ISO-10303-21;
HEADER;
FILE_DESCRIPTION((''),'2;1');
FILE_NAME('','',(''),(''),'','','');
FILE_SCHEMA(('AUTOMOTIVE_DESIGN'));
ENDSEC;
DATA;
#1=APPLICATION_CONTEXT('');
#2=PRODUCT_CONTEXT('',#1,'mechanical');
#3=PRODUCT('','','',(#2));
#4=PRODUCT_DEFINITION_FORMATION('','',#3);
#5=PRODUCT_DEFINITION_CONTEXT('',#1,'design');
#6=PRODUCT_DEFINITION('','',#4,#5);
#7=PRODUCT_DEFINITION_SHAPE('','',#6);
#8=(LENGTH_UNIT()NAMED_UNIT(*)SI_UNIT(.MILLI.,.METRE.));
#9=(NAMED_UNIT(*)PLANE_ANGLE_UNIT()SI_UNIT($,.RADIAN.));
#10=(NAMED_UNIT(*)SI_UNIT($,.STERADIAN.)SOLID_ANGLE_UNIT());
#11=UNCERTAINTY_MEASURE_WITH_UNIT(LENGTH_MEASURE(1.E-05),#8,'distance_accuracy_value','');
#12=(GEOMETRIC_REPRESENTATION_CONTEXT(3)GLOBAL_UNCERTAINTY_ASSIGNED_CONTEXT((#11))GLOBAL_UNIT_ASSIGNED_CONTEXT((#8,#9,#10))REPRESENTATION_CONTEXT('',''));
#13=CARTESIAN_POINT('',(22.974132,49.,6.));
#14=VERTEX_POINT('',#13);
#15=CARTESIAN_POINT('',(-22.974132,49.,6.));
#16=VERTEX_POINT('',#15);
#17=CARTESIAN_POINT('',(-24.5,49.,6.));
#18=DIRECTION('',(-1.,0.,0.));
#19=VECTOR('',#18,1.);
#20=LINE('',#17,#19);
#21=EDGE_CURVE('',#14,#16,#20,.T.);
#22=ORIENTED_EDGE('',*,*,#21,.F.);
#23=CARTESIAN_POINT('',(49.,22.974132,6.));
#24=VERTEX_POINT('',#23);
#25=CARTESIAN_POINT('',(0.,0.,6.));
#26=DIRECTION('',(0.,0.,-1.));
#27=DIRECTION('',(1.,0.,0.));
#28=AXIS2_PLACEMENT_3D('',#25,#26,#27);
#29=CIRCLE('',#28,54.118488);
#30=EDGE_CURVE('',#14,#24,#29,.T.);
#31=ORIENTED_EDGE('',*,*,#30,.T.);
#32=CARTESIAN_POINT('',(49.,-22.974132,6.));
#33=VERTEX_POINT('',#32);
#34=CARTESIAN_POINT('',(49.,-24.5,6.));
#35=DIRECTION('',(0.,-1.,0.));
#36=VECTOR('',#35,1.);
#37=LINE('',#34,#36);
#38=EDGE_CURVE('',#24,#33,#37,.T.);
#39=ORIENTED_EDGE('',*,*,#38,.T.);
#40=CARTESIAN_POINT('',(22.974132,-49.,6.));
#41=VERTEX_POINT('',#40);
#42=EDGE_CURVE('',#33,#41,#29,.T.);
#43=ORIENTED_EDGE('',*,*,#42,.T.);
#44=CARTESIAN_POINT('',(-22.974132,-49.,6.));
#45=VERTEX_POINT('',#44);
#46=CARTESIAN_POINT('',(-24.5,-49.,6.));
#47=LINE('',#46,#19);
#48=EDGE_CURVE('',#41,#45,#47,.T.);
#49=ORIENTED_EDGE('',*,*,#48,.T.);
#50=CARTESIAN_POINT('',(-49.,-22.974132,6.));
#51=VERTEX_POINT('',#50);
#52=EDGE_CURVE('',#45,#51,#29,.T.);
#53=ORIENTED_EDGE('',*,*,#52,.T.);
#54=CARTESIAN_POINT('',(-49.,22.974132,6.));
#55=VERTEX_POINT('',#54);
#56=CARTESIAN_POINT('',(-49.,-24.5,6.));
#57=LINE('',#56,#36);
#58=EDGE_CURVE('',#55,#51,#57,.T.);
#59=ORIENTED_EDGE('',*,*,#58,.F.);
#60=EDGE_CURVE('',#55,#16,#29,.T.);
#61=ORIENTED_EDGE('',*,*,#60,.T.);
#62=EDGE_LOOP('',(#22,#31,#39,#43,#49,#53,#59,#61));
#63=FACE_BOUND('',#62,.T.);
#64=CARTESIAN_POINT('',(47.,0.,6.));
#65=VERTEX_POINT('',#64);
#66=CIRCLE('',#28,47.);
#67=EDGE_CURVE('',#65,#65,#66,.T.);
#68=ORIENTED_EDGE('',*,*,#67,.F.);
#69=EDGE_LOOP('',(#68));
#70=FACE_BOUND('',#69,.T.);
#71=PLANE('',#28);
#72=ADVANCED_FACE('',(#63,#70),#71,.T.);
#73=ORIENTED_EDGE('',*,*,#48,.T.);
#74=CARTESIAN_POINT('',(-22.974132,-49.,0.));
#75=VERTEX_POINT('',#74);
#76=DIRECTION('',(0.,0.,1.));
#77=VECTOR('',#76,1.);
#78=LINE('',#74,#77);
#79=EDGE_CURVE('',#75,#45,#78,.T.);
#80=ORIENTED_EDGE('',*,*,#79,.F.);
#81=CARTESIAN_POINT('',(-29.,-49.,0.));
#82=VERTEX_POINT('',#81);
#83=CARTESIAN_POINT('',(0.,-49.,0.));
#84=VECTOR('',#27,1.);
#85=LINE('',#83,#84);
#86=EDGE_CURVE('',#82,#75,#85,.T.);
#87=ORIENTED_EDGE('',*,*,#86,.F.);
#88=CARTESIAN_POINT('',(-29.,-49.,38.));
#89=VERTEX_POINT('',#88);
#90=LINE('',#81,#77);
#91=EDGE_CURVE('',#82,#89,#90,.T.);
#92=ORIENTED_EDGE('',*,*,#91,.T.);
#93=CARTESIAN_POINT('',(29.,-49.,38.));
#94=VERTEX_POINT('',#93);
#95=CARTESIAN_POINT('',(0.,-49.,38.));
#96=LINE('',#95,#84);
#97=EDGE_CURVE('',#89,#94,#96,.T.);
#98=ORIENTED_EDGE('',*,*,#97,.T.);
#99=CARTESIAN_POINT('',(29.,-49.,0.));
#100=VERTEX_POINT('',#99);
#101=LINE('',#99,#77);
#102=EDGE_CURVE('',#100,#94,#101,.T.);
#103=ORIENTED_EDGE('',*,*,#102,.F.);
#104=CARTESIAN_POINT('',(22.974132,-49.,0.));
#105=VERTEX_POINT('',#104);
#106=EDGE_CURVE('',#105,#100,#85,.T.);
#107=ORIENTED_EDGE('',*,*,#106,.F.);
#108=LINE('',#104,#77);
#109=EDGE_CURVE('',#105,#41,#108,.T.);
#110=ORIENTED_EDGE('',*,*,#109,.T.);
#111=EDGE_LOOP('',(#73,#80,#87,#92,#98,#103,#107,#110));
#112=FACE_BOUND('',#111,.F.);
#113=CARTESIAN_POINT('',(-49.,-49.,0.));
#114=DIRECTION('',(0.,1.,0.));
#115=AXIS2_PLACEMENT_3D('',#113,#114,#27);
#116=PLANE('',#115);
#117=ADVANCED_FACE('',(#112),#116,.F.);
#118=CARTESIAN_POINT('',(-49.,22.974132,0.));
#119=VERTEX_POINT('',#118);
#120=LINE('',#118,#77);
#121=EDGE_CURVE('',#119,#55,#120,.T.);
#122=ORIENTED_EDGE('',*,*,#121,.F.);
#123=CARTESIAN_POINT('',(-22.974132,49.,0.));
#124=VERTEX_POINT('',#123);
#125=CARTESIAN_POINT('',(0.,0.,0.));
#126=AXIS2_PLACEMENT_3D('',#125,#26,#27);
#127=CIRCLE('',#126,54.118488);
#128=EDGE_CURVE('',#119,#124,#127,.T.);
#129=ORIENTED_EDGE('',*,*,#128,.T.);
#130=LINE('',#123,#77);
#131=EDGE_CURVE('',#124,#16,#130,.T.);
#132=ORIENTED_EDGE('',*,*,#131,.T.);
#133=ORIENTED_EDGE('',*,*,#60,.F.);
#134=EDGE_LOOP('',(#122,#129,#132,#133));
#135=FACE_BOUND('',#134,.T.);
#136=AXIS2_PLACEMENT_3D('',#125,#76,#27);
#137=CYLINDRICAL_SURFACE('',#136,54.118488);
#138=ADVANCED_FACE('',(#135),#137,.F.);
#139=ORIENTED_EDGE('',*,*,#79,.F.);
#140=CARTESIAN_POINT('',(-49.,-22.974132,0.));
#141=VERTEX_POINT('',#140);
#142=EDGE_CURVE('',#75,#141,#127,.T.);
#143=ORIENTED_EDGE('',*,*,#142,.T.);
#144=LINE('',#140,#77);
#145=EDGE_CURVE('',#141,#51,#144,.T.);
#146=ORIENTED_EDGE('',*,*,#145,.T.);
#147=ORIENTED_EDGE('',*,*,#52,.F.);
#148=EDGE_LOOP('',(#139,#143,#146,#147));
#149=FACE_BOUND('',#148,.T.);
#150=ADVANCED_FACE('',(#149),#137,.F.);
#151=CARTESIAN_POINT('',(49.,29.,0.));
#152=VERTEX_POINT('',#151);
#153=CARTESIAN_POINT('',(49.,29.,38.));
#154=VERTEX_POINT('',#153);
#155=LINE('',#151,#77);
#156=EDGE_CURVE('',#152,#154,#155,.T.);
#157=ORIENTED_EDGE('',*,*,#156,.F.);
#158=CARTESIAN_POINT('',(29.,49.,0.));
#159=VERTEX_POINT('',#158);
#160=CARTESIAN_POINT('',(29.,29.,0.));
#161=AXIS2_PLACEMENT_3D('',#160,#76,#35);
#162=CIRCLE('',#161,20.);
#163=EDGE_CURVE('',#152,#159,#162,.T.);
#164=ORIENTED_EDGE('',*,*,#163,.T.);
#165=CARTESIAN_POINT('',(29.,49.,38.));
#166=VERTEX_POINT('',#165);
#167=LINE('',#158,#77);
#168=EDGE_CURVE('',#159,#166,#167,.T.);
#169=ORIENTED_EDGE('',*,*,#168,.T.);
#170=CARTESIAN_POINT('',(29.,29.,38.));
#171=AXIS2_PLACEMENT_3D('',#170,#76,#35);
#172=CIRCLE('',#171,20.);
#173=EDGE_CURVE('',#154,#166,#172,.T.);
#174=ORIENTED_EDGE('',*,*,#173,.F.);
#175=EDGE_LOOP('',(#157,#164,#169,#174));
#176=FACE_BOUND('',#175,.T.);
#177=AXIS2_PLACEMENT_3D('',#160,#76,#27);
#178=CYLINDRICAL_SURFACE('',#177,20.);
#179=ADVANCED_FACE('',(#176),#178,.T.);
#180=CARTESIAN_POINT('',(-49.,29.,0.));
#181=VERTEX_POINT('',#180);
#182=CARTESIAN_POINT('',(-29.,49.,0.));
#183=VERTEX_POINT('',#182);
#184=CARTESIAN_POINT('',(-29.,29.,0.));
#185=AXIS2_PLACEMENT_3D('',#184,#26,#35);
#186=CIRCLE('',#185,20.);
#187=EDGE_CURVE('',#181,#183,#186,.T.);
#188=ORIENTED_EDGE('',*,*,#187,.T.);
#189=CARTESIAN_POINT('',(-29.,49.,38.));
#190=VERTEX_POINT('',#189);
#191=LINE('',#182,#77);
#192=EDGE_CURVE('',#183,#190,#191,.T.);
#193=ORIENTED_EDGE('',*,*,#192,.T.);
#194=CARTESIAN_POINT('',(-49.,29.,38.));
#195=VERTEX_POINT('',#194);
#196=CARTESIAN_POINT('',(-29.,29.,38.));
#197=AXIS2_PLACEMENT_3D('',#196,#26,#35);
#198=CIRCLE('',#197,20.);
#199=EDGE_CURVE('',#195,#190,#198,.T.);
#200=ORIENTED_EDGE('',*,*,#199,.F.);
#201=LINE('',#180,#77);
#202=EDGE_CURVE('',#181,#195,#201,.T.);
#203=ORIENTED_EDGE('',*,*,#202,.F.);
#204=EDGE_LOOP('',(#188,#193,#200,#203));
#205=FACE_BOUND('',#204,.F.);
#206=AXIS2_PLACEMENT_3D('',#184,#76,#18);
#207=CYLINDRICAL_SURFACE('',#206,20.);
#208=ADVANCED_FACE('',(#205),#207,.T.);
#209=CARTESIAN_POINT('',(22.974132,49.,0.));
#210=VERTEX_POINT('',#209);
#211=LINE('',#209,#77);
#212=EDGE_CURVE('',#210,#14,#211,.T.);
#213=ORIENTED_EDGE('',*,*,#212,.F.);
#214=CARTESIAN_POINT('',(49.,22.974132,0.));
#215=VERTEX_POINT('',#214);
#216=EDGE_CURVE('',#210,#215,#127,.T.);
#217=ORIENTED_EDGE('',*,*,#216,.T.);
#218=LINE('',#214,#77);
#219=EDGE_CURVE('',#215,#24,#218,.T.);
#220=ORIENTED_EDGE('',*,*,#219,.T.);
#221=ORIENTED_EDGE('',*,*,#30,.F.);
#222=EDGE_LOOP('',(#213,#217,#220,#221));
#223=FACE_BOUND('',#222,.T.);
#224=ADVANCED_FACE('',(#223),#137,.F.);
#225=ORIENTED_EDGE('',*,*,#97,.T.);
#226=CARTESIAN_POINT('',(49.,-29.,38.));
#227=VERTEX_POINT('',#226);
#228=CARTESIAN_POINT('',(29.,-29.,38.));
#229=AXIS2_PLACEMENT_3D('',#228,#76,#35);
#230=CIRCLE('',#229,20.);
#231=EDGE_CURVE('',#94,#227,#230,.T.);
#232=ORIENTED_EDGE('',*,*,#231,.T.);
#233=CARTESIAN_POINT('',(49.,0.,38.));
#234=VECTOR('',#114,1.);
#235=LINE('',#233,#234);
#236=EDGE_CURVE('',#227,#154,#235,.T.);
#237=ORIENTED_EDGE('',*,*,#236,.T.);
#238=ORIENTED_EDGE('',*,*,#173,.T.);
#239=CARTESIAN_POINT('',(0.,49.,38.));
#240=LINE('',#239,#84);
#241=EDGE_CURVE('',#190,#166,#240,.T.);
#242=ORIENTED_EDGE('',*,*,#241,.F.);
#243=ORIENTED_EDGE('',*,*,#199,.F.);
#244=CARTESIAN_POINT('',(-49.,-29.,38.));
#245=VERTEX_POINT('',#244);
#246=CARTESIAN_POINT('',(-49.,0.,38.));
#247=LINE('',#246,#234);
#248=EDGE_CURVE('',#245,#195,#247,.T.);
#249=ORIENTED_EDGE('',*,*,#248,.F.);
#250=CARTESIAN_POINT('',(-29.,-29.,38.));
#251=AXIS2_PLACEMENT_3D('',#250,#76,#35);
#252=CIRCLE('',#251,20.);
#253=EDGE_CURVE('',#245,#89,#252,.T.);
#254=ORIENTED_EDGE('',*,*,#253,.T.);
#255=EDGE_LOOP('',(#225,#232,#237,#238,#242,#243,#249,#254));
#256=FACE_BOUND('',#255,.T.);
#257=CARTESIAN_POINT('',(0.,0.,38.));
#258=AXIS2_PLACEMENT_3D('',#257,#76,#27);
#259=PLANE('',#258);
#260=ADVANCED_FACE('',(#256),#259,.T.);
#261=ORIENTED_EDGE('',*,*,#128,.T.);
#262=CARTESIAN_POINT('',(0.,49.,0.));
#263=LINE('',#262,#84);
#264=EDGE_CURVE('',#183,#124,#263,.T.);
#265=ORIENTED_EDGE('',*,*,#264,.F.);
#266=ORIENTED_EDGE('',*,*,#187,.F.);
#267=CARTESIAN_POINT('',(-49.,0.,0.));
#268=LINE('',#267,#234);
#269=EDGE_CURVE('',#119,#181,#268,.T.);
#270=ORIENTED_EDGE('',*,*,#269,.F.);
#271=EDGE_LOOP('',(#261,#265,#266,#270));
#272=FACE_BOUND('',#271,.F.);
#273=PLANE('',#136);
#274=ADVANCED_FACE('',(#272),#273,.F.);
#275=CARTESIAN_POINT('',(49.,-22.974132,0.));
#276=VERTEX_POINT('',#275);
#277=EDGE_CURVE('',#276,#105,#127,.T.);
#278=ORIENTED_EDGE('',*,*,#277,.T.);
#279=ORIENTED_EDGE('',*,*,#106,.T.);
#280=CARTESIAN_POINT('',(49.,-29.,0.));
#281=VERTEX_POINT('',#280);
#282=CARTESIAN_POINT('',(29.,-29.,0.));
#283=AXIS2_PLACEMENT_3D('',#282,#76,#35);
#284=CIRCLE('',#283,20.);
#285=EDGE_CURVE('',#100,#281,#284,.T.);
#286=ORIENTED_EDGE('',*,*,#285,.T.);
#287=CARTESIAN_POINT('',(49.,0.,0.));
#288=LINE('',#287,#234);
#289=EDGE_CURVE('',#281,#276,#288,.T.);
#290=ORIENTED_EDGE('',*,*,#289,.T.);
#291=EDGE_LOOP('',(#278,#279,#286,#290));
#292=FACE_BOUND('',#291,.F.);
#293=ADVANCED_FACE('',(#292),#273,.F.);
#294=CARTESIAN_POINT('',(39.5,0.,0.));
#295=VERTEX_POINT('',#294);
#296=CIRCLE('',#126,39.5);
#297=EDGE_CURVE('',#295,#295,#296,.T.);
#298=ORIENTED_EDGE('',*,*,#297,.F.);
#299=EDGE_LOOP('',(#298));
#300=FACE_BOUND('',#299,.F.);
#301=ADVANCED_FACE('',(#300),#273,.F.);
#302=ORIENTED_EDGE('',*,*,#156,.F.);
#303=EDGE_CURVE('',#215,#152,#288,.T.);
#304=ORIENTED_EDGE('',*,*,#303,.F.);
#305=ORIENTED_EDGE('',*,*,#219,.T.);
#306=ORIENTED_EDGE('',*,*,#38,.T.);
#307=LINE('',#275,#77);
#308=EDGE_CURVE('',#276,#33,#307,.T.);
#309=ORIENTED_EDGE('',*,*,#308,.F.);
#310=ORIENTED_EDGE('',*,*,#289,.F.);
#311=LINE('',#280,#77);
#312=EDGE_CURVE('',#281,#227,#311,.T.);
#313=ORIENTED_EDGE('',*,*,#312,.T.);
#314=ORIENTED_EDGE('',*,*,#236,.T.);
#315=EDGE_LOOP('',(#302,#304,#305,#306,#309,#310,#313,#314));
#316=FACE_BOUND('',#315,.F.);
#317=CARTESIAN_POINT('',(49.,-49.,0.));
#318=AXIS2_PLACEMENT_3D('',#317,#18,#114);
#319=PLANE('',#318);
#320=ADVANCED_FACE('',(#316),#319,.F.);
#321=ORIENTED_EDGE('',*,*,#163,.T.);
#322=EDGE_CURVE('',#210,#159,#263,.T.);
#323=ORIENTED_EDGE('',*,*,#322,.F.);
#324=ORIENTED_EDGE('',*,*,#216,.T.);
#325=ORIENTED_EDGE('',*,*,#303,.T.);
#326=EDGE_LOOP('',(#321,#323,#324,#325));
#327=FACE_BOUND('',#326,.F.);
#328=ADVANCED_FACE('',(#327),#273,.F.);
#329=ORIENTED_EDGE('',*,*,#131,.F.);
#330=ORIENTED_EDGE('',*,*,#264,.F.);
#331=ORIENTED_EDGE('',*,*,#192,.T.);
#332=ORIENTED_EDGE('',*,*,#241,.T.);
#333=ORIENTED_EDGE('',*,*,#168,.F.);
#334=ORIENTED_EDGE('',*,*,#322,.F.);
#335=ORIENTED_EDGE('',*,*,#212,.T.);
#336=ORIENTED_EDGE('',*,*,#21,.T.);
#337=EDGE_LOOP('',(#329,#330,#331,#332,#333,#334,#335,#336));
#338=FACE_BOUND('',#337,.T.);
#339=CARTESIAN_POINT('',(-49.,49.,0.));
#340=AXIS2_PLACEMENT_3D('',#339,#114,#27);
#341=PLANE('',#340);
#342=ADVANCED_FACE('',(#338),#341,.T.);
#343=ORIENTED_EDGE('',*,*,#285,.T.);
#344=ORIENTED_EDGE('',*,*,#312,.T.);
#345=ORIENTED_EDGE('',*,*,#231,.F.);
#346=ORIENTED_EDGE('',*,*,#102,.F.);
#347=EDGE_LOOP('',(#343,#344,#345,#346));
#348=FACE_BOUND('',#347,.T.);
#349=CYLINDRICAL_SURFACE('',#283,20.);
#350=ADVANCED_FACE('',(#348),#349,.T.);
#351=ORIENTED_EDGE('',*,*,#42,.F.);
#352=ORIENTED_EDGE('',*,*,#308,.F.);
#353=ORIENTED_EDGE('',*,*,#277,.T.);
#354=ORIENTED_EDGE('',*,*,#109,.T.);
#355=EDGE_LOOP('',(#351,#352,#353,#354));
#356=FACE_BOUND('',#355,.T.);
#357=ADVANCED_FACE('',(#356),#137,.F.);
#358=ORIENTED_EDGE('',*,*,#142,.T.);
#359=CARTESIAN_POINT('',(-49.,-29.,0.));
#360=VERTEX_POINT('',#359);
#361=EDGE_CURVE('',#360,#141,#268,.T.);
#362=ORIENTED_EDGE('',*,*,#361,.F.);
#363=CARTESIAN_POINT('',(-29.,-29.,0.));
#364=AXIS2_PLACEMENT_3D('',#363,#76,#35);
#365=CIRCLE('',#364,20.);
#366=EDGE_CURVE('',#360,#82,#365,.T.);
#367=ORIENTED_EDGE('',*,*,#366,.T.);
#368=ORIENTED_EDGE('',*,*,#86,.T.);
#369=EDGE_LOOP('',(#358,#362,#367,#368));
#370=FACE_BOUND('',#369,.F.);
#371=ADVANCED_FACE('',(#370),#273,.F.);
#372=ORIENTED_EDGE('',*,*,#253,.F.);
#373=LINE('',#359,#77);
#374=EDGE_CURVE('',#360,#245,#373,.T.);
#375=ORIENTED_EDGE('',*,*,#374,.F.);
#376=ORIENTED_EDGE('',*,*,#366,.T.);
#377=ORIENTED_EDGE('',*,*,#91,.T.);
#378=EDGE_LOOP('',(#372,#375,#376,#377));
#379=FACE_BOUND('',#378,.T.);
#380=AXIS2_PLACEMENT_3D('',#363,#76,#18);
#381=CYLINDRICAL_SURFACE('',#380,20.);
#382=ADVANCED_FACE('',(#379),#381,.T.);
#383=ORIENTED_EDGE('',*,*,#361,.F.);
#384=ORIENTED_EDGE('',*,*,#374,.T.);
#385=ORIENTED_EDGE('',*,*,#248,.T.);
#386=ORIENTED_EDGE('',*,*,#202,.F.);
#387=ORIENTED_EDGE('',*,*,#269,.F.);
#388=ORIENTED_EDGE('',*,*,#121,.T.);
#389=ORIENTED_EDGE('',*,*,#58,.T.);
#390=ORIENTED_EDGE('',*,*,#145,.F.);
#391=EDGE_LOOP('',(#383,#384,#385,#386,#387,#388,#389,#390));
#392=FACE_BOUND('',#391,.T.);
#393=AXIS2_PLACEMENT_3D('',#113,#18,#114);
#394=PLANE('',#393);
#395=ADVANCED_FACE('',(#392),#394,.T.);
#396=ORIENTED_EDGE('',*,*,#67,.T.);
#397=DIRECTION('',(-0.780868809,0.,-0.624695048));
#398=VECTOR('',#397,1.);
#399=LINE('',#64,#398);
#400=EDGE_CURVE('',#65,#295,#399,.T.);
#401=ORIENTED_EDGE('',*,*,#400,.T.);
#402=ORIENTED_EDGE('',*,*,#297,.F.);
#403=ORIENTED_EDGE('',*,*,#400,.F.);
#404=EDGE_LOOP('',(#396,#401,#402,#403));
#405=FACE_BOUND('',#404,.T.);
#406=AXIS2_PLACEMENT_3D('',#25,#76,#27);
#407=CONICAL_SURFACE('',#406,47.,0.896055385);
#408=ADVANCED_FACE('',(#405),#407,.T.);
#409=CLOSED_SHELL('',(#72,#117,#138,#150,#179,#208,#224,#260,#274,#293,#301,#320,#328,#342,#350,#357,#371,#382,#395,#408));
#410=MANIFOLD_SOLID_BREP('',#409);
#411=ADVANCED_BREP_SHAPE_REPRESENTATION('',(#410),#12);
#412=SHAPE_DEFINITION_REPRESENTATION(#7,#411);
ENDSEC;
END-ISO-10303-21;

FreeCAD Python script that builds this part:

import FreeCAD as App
import Part
import Sketcher
from FreeCAD import Vector
Q = App.Units.Quantity


def edges_at(feature, points):
    """Names of the edges that pass closest to the given points."""
    edges = feature.Shape.Edges
    near = lambda p: min(range(len(edges)), key=lambda i: edges[i].distToShape(Part.Vertex(*p))[0])
    return sorted({f"Edge{near(p) + 1}" for p in points})


def add_polygon(sketch, points):
    """Adds a closed chain of lines whose ends are joined by coincident constraints."""
    first, n = sketch.GeometryCount, len(points)
    for a, b in zip(points, points[1:] + points[:1]):
        sketch.addGeometry(Part.LineSegment(App.Vector(*a, 0), App.Vector(*b, 0)), False)
    for i in range(n):
        sketch.addConstraint(Sketcher.Constraint("Coincident", first + i, 2, first + (i + 1) % n, 1))

doc = App.newDocument("Part")
params = doc.addObject("Spreadsheet::Sheet", "Params")
for row, (alias, value) in enumerate([
    ("sketch1_width", "98 mm"),
    ("pad1_length", "38 mm"),
    ("fillet_radius", "20 mm"),
    ("sketch2_height", "6 mm"),
    ("groove_angle", "360 deg"),
], start=1):
    params.set(f"A{row}", alias)
    params.set(f"B{row}", "=" + value)
    params.setAlias(f"B{row}", alias)

body = doc.addObject("PartDesign::Body", "Body")

# Sketch on XY plane
sketch1 = body.newObject("Sketcher::SketchObject", "Sketch")
sketch1.AttachmentSupport = (doc.getObject("XY_Plane"), [""])
sketch1.MapMode = "FlatFace"
add_polygon(sketch1, [(-49, 49), (-49, -49), (49, -49), (49, 49)])  # lines 0-3
sketch1.addConstraint([
    Sketcher.Constraint("Vertical", 0),
    Sketcher.Constraint("Horizontal", 1),
    Sketcher.Constraint("Vertical", 2),
    Sketcher.Constraint("Horizontal", 3),
    Sketcher.Constraint("Symmetric", 0, 2, 2, 2, -1, 1),
    Sketcher.Constraint("Equal", 3, 0),
    Sketcher.Constraint("DistanceX", 1, 1, 1, 2, Q("98 mm")),
])
sketch1.setExpression("Constraints[10]", "Params.sketch1_width")
pad1 = body.newObject("PartDesign::Pad", "Pad")
pad1.Profile = sketch1
pad1.setExpression("Length", "Params.pad1_length")
doc.recompute()

fillet = body.newObject("PartDesign::Fillet", "Fillet")
fillet.Base = (pad1, edges_at(pad1, [
    (-49, 49, 19),
    (49, 49, 19),
    (49, -49, 19),
    (-49, -49, 19),
]))
fillet.setExpression("Radius", "Params.fillet_radius")

# Sketch on XZ plane
sketch2 = body.newObject("Sketcher::SketchObject", "Sketch001")
sketch2.AttachmentSupport = (doc.getObject("XZ_Plane"), [""])
sketch2.MapMode = "FlatFace"
add_polygon(sketch2, [(47, 6), (39.5, 0), (54.118488, 0), (54.118488, 6)])  # lines 0-3
sketch2.addConstraint([
    Sketcher.Constraint("Horizontal", 1),
    Sketcher.Constraint("Vertical", 2),
    Sketcher.Constraint("Horizontal", 3),
    Sketcher.Constraint("PointOnObject", 0, 2, -1),
    Sketcher.Constraint("DistanceY", 2, 1, 2, 2, Q("6 mm")),
    Sketcher.Constraint("DistanceX", -1, 1, 3, 2, Q("47 mm")),
    Sketcher.Constraint("DistanceX", -1, 1, 0, 2, Q("39.5 mm")),
    Sketcher.Constraint("DistanceX", 1, 1, 1, 2, Q("14.618488 mm")),
])
sketch2.setExpression("Constraints[8]", "Params.sketch2_height")
groove = body.newObject("PartDesign::Groove", "Groove")
groove.Profile = sketch2
groove.ReferenceAxis = (sketch2, ["V_Axis"])
groove.setExpression("Angle", "Params.groove_angle")

doc.recompute()
